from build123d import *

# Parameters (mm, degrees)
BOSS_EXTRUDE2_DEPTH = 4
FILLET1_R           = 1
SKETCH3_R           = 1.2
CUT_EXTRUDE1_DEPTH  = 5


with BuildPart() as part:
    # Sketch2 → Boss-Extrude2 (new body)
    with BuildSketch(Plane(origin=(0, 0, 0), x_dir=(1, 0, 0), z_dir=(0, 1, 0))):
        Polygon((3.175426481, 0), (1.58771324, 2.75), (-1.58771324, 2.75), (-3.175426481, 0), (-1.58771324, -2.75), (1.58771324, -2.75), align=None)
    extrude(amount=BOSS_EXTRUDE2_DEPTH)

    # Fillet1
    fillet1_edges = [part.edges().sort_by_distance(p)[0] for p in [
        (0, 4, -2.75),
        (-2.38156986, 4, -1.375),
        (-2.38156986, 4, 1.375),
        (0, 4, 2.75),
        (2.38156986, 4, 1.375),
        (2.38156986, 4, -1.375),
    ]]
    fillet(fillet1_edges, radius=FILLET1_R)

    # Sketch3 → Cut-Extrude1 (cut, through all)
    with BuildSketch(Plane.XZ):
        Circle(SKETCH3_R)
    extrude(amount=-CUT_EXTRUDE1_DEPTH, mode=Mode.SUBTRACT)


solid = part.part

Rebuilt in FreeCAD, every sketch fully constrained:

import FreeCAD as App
import Part
import Sketcher
from FreeCAD import Vector
Q = App.Units.Quantity


def edges_at(feature, points):
    """Names of the edges that pass closest to the given points."""
    edges = feature.Shape.Edges
    near = lambda p: min(range(len(edges)), key=lambda i: edges[i].distToShape(Part.Vertex(*p))[0])
    return sorted({f"Edge{near(p) + 1}" for p in points})


def add_polygon(sketch, points):
    """Adds a closed chain of lines whose ends are joined by coincident constraints."""
    first, n = sketch.GeometryCount, len(points)
    for a, b in zip(points, points[1:] + points[:1]):
        sketch.addGeometry(Part.LineSegment(App.Vector(*a, 0), App.Vector(*b, 0)), False)
    for i in range(n):
        sketch.addConstraint(Sketcher.Constraint("Coincident", first + i, 2, first + (i + 1) % n, 1))

doc = App.newDocument("Part")
body = doc.addObject("PartDesign::Body", "Body")

# Sketch on XZ plane
sketch1 = body.newObject("Sketcher::SketchObject", "Sketch")
sketch1.AttachmentSupport = (doc.getObject("XZ_Plane"), [""])
sketch1.MapMode = "FlatFace"
add_polygon(sketch1, [(3.2, 0), (1.6, -2.8), (-1.6, -2.8), (-3.2, 0), (-1.6, 2.8), (1.6, 2.8)])  # lines 0-5
sketch1.addConstraint([
    Sketcher.Constraint("Horizontal", 1),
    Sketcher.Constraint("Horizontal", 4),
    Sketcher.Constraint("Symmetric", 0, 2, 3, 2, -1, 1),
    Sketcher.Constraint("Symmetric", 2, 2, 5, 2, -1, 1),
    Sketcher.Constraint("PointOnObject", 2, 2, -1),
    Sketcher.Constraint("Parallel", 2, 5),
    Sketcher.Constraint("Vertical", 1, 2, 3, 2),
    Sketcher.Constraint("Angle", 0, Q("-120 deg")),
    Sketcher.Constraint("DistanceY", 1, 2, 3, 2, Q("5.5 mm")),
    Sketcher.Constraint("DistanceX", 1, 2, 1, 1, Q("3.175426 mm")),
])
pad1 = body.newObject("PartDesign::Pad", "Pad")
pad1.Profile = sketch1
pad1.Length = 4
pad1.Reversed = True
doc.recompute()

fillet = body.newObject("PartDesign::Fillet", "Fillet")
fillet.Base = (pad1, edges_at(pad1, [
    (0, 4, -2.75),
    (-2.382, 4, -1.375),
    (-2.382, 4, 1.375),
    (0, 4, 2.75),
    (2.382, 4, 1.375),
    (2.382, 4, -1.375),
]))
fillet.Radius = 1

# Sketch on XZ plane
sketch2 = body.newObject("Sketcher::SketchObject", "Sketch001")
sketch2.AttachmentSupport = (doc.getObject("XZ_Plane"), [""])
sketch2.MapMode = "FlatFace"
sketch2.addGeometry(Part.Circle(Vector(0, 0, 0), Vector(0, 0, 1), 1.2), False)
sketch2.addConstraint([
    Sketcher.Constraint("Coincident", 0, 3, -1, 1),
    Sketcher.Constraint("Diameter", 0, Q("2.4 mm")),
])
pocket1 = body.newObject("PartDesign::Pocket", "Pocket")
pocket1.Profile = sketch2
pocket1.Type = "ThroughAll"

doc.recompute()
